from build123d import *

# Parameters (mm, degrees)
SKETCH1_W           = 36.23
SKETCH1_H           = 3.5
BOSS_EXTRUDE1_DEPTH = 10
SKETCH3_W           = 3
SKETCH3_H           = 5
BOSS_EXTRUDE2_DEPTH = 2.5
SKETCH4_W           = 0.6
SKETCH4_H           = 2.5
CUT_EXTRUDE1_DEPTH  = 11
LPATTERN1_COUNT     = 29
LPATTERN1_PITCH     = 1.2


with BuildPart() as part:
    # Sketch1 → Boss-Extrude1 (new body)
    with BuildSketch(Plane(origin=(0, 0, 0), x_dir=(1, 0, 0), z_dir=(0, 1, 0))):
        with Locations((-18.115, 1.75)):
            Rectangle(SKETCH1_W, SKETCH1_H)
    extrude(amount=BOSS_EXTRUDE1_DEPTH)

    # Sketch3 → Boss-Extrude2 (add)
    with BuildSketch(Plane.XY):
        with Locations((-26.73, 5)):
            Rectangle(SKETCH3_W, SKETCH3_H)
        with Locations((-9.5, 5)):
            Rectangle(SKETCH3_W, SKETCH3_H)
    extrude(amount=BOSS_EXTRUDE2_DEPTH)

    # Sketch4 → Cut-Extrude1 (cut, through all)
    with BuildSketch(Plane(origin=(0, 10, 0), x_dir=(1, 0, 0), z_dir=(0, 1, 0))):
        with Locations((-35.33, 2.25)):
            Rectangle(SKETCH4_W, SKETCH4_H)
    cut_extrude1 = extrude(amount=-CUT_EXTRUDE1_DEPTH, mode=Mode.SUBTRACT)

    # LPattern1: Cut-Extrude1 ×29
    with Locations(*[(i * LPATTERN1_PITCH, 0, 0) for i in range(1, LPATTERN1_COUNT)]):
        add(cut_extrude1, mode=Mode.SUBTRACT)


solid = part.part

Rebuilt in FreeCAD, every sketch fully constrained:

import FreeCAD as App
import Part
import Sketcher

V = App.Vector
Q = App.Units.Quantity


def add_polygon(sketch, points):
    """Adds a closed chain of lines whose ends are joined by coincident constraints."""
    first, n = sketch.GeometryCount, len(points)
    for a, b in zip(points, points[1:] + points[:1]):
        sketch.addGeometry(Part.LineSegment(App.Vector(*a, 0), App.Vector(*b, 0)), False)
    for i in range(n):
        sketch.addConstraint(Sketcher.Constraint("Coincident", first + i, 2, first + (i + 1) % n, 1))

doc = App.newDocument("Part")
body = doc.addObject("PartDesign::Body", "Body")

# Sketch on XZ plane
sketch1 = body.newObject("Sketcher::SketchObject", "Sketch")
sketch1.AttachmentSupport = (doc.getObject("XZ_Plane"), [""])
sketch1.MapMode = "FlatFace"
add_polygon(sketch1, [(-36.2, -3.5), (-36.2, 0), (0, 0), (0, -3.5)])  # lines 0-3
sketch1.addConstraint([
    Sketcher.Constraint("Vertical", 0),
    Sketcher.Constraint("Horizontal", 1),
    Sketcher.Constraint("Vertical", 2),
    Sketcher.Constraint("Horizontal", 3),
    Sketcher.Constraint("Coincident", 1, 2, -1, 1),
    Sketcher.Constraint("DistanceY", 0, 1, 0, 2, Q("3.5 mm")),
    Sketcher.Constraint("DistanceX", 1, 1, 1, 2, Q("36.23 mm")),
])
pad1 = body.newObject("PartDesign::Pad", "Pad")
pad1.Profile = sketch1
pad1.Length = 10
pad1.Reversed = True

# Sketch on XY plane
sketch2 = body.newObject("Sketcher::SketchObject", "Sketch001")
sketch2.AttachmentSupport = (doc.getObject("XY_Plane"), [""])
sketch2.MapMode = "FlatFace"
add_polygon(sketch2, [(-28.2, 7.5), (-28.2, 2.5), (-25.2, 2.5), (-25.2, 7.5)])  # lines 0-3
add_polygon(sketch2, [(-11, 7.5), (-11, 2.5), (-8, 2.5), (-8, 7.5)])  # lines 4-7
sketch2.addConstraint([
    Sketcher.Constraint("Vertical", 0),
    Sketcher.Constraint("Horizontal", 1),
    Sketcher.Constraint("Vertical", 2),
    Sketcher.Constraint("Horizontal", 3),
    Sketcher.Constraint("Vertical", 4),
    Sketcher.Constraint("Horizontal", 5),
    Sketcher.Constraint("Vertical", 6),
    Sketcher.Constraint("Horizontal", 7),
    Sketcher.Constraint("Horizontal", 1, 2, 4, 2),
    Sketcher.Constraint("Horizontal", 3, 2, 6, 2),
    Sketcher.Constraint("Equal", 3, 5),
    Sketcher.Constraint("DistanceX", 1, 1, 1, 2, Q("3 mm")),
    Sketcher.Constraint("DistanceY", 0, 2, 0, 1, Q("5 mm")),
    Sketcher.Constraint("DistanceX", 4, 2, -1, 1, Q("11 mm")),
    Sketcher.Constraint("DistanceY", -1, 1, 0, 2, Q("2.5 mm")),
    Sketcher.Constraint("DistanceX", 0, 2, -1, 1, Q("28.23 mm")),
])
pad2 = body.newObject("PartDesign::Pad", "Pad001")
pad2.Profile = sketch2
pad2.Length = 2.5

# Sketch on XZ plane
sketch3 = body.newObject("Sketcher::SketchObject", "Sketch002")
sketch3.AttachmentSupport = (doc.getObject("XZ_Plane"), [""])
sketch3.MapMode = "FlatFace"
sketch3.AttachmentOffset = App.Placement(V(0, 0, -10), App.Rotation())
add_polygon(sketch3, [(-35.6, -3.5), (-35.6, -1), (-35, -1), (-35, -3.5)])  # lines 0-3
sketch3.addConstraint([
    Sketcher.Constraint("Vertical", 0),
    Sketcher.Constraint("Horizontal", 1),
    Sketcher.Constraint("Vertical", 2),
    Sketcher.Constraint("Horizontal", 3),
    Sketcher.Constraint("DistanceX", 1, 1, 1, 2, Q("0.6 mm")),
    Sketcher.Constraint("DistanceY", 0, 1, 0, 2, Q("2.5 mm")),
    Sketcher.Constraint("DistanceY", 0, 2, -1, 1, Q("1 mm")),
    Sketcher.Constraint("DistanceX", 0, 2, -1, 1, Q("35.63 mm")),
])
pocket1 = body.newObject("PartDesign::Pocket", "Pocket")
pocket1.Profile = sketch3
pocket1.Type = "ThroughAll"
pocket1.Reversed = True
doc.recompute()

linearpattern = body.newObject("PartDesign::LinearPattern", "LinearPattern")
linearpattern.Originals = [pocket1]
linearpattern.Direction = (doc.getObject("X_Axis"), [""])
linearpattern.Mode = "offset"
linearpattern.Offset = 1.2
linearpattern.Occurrences = 29
body.Tip = linearpattern

doc.recompute()
